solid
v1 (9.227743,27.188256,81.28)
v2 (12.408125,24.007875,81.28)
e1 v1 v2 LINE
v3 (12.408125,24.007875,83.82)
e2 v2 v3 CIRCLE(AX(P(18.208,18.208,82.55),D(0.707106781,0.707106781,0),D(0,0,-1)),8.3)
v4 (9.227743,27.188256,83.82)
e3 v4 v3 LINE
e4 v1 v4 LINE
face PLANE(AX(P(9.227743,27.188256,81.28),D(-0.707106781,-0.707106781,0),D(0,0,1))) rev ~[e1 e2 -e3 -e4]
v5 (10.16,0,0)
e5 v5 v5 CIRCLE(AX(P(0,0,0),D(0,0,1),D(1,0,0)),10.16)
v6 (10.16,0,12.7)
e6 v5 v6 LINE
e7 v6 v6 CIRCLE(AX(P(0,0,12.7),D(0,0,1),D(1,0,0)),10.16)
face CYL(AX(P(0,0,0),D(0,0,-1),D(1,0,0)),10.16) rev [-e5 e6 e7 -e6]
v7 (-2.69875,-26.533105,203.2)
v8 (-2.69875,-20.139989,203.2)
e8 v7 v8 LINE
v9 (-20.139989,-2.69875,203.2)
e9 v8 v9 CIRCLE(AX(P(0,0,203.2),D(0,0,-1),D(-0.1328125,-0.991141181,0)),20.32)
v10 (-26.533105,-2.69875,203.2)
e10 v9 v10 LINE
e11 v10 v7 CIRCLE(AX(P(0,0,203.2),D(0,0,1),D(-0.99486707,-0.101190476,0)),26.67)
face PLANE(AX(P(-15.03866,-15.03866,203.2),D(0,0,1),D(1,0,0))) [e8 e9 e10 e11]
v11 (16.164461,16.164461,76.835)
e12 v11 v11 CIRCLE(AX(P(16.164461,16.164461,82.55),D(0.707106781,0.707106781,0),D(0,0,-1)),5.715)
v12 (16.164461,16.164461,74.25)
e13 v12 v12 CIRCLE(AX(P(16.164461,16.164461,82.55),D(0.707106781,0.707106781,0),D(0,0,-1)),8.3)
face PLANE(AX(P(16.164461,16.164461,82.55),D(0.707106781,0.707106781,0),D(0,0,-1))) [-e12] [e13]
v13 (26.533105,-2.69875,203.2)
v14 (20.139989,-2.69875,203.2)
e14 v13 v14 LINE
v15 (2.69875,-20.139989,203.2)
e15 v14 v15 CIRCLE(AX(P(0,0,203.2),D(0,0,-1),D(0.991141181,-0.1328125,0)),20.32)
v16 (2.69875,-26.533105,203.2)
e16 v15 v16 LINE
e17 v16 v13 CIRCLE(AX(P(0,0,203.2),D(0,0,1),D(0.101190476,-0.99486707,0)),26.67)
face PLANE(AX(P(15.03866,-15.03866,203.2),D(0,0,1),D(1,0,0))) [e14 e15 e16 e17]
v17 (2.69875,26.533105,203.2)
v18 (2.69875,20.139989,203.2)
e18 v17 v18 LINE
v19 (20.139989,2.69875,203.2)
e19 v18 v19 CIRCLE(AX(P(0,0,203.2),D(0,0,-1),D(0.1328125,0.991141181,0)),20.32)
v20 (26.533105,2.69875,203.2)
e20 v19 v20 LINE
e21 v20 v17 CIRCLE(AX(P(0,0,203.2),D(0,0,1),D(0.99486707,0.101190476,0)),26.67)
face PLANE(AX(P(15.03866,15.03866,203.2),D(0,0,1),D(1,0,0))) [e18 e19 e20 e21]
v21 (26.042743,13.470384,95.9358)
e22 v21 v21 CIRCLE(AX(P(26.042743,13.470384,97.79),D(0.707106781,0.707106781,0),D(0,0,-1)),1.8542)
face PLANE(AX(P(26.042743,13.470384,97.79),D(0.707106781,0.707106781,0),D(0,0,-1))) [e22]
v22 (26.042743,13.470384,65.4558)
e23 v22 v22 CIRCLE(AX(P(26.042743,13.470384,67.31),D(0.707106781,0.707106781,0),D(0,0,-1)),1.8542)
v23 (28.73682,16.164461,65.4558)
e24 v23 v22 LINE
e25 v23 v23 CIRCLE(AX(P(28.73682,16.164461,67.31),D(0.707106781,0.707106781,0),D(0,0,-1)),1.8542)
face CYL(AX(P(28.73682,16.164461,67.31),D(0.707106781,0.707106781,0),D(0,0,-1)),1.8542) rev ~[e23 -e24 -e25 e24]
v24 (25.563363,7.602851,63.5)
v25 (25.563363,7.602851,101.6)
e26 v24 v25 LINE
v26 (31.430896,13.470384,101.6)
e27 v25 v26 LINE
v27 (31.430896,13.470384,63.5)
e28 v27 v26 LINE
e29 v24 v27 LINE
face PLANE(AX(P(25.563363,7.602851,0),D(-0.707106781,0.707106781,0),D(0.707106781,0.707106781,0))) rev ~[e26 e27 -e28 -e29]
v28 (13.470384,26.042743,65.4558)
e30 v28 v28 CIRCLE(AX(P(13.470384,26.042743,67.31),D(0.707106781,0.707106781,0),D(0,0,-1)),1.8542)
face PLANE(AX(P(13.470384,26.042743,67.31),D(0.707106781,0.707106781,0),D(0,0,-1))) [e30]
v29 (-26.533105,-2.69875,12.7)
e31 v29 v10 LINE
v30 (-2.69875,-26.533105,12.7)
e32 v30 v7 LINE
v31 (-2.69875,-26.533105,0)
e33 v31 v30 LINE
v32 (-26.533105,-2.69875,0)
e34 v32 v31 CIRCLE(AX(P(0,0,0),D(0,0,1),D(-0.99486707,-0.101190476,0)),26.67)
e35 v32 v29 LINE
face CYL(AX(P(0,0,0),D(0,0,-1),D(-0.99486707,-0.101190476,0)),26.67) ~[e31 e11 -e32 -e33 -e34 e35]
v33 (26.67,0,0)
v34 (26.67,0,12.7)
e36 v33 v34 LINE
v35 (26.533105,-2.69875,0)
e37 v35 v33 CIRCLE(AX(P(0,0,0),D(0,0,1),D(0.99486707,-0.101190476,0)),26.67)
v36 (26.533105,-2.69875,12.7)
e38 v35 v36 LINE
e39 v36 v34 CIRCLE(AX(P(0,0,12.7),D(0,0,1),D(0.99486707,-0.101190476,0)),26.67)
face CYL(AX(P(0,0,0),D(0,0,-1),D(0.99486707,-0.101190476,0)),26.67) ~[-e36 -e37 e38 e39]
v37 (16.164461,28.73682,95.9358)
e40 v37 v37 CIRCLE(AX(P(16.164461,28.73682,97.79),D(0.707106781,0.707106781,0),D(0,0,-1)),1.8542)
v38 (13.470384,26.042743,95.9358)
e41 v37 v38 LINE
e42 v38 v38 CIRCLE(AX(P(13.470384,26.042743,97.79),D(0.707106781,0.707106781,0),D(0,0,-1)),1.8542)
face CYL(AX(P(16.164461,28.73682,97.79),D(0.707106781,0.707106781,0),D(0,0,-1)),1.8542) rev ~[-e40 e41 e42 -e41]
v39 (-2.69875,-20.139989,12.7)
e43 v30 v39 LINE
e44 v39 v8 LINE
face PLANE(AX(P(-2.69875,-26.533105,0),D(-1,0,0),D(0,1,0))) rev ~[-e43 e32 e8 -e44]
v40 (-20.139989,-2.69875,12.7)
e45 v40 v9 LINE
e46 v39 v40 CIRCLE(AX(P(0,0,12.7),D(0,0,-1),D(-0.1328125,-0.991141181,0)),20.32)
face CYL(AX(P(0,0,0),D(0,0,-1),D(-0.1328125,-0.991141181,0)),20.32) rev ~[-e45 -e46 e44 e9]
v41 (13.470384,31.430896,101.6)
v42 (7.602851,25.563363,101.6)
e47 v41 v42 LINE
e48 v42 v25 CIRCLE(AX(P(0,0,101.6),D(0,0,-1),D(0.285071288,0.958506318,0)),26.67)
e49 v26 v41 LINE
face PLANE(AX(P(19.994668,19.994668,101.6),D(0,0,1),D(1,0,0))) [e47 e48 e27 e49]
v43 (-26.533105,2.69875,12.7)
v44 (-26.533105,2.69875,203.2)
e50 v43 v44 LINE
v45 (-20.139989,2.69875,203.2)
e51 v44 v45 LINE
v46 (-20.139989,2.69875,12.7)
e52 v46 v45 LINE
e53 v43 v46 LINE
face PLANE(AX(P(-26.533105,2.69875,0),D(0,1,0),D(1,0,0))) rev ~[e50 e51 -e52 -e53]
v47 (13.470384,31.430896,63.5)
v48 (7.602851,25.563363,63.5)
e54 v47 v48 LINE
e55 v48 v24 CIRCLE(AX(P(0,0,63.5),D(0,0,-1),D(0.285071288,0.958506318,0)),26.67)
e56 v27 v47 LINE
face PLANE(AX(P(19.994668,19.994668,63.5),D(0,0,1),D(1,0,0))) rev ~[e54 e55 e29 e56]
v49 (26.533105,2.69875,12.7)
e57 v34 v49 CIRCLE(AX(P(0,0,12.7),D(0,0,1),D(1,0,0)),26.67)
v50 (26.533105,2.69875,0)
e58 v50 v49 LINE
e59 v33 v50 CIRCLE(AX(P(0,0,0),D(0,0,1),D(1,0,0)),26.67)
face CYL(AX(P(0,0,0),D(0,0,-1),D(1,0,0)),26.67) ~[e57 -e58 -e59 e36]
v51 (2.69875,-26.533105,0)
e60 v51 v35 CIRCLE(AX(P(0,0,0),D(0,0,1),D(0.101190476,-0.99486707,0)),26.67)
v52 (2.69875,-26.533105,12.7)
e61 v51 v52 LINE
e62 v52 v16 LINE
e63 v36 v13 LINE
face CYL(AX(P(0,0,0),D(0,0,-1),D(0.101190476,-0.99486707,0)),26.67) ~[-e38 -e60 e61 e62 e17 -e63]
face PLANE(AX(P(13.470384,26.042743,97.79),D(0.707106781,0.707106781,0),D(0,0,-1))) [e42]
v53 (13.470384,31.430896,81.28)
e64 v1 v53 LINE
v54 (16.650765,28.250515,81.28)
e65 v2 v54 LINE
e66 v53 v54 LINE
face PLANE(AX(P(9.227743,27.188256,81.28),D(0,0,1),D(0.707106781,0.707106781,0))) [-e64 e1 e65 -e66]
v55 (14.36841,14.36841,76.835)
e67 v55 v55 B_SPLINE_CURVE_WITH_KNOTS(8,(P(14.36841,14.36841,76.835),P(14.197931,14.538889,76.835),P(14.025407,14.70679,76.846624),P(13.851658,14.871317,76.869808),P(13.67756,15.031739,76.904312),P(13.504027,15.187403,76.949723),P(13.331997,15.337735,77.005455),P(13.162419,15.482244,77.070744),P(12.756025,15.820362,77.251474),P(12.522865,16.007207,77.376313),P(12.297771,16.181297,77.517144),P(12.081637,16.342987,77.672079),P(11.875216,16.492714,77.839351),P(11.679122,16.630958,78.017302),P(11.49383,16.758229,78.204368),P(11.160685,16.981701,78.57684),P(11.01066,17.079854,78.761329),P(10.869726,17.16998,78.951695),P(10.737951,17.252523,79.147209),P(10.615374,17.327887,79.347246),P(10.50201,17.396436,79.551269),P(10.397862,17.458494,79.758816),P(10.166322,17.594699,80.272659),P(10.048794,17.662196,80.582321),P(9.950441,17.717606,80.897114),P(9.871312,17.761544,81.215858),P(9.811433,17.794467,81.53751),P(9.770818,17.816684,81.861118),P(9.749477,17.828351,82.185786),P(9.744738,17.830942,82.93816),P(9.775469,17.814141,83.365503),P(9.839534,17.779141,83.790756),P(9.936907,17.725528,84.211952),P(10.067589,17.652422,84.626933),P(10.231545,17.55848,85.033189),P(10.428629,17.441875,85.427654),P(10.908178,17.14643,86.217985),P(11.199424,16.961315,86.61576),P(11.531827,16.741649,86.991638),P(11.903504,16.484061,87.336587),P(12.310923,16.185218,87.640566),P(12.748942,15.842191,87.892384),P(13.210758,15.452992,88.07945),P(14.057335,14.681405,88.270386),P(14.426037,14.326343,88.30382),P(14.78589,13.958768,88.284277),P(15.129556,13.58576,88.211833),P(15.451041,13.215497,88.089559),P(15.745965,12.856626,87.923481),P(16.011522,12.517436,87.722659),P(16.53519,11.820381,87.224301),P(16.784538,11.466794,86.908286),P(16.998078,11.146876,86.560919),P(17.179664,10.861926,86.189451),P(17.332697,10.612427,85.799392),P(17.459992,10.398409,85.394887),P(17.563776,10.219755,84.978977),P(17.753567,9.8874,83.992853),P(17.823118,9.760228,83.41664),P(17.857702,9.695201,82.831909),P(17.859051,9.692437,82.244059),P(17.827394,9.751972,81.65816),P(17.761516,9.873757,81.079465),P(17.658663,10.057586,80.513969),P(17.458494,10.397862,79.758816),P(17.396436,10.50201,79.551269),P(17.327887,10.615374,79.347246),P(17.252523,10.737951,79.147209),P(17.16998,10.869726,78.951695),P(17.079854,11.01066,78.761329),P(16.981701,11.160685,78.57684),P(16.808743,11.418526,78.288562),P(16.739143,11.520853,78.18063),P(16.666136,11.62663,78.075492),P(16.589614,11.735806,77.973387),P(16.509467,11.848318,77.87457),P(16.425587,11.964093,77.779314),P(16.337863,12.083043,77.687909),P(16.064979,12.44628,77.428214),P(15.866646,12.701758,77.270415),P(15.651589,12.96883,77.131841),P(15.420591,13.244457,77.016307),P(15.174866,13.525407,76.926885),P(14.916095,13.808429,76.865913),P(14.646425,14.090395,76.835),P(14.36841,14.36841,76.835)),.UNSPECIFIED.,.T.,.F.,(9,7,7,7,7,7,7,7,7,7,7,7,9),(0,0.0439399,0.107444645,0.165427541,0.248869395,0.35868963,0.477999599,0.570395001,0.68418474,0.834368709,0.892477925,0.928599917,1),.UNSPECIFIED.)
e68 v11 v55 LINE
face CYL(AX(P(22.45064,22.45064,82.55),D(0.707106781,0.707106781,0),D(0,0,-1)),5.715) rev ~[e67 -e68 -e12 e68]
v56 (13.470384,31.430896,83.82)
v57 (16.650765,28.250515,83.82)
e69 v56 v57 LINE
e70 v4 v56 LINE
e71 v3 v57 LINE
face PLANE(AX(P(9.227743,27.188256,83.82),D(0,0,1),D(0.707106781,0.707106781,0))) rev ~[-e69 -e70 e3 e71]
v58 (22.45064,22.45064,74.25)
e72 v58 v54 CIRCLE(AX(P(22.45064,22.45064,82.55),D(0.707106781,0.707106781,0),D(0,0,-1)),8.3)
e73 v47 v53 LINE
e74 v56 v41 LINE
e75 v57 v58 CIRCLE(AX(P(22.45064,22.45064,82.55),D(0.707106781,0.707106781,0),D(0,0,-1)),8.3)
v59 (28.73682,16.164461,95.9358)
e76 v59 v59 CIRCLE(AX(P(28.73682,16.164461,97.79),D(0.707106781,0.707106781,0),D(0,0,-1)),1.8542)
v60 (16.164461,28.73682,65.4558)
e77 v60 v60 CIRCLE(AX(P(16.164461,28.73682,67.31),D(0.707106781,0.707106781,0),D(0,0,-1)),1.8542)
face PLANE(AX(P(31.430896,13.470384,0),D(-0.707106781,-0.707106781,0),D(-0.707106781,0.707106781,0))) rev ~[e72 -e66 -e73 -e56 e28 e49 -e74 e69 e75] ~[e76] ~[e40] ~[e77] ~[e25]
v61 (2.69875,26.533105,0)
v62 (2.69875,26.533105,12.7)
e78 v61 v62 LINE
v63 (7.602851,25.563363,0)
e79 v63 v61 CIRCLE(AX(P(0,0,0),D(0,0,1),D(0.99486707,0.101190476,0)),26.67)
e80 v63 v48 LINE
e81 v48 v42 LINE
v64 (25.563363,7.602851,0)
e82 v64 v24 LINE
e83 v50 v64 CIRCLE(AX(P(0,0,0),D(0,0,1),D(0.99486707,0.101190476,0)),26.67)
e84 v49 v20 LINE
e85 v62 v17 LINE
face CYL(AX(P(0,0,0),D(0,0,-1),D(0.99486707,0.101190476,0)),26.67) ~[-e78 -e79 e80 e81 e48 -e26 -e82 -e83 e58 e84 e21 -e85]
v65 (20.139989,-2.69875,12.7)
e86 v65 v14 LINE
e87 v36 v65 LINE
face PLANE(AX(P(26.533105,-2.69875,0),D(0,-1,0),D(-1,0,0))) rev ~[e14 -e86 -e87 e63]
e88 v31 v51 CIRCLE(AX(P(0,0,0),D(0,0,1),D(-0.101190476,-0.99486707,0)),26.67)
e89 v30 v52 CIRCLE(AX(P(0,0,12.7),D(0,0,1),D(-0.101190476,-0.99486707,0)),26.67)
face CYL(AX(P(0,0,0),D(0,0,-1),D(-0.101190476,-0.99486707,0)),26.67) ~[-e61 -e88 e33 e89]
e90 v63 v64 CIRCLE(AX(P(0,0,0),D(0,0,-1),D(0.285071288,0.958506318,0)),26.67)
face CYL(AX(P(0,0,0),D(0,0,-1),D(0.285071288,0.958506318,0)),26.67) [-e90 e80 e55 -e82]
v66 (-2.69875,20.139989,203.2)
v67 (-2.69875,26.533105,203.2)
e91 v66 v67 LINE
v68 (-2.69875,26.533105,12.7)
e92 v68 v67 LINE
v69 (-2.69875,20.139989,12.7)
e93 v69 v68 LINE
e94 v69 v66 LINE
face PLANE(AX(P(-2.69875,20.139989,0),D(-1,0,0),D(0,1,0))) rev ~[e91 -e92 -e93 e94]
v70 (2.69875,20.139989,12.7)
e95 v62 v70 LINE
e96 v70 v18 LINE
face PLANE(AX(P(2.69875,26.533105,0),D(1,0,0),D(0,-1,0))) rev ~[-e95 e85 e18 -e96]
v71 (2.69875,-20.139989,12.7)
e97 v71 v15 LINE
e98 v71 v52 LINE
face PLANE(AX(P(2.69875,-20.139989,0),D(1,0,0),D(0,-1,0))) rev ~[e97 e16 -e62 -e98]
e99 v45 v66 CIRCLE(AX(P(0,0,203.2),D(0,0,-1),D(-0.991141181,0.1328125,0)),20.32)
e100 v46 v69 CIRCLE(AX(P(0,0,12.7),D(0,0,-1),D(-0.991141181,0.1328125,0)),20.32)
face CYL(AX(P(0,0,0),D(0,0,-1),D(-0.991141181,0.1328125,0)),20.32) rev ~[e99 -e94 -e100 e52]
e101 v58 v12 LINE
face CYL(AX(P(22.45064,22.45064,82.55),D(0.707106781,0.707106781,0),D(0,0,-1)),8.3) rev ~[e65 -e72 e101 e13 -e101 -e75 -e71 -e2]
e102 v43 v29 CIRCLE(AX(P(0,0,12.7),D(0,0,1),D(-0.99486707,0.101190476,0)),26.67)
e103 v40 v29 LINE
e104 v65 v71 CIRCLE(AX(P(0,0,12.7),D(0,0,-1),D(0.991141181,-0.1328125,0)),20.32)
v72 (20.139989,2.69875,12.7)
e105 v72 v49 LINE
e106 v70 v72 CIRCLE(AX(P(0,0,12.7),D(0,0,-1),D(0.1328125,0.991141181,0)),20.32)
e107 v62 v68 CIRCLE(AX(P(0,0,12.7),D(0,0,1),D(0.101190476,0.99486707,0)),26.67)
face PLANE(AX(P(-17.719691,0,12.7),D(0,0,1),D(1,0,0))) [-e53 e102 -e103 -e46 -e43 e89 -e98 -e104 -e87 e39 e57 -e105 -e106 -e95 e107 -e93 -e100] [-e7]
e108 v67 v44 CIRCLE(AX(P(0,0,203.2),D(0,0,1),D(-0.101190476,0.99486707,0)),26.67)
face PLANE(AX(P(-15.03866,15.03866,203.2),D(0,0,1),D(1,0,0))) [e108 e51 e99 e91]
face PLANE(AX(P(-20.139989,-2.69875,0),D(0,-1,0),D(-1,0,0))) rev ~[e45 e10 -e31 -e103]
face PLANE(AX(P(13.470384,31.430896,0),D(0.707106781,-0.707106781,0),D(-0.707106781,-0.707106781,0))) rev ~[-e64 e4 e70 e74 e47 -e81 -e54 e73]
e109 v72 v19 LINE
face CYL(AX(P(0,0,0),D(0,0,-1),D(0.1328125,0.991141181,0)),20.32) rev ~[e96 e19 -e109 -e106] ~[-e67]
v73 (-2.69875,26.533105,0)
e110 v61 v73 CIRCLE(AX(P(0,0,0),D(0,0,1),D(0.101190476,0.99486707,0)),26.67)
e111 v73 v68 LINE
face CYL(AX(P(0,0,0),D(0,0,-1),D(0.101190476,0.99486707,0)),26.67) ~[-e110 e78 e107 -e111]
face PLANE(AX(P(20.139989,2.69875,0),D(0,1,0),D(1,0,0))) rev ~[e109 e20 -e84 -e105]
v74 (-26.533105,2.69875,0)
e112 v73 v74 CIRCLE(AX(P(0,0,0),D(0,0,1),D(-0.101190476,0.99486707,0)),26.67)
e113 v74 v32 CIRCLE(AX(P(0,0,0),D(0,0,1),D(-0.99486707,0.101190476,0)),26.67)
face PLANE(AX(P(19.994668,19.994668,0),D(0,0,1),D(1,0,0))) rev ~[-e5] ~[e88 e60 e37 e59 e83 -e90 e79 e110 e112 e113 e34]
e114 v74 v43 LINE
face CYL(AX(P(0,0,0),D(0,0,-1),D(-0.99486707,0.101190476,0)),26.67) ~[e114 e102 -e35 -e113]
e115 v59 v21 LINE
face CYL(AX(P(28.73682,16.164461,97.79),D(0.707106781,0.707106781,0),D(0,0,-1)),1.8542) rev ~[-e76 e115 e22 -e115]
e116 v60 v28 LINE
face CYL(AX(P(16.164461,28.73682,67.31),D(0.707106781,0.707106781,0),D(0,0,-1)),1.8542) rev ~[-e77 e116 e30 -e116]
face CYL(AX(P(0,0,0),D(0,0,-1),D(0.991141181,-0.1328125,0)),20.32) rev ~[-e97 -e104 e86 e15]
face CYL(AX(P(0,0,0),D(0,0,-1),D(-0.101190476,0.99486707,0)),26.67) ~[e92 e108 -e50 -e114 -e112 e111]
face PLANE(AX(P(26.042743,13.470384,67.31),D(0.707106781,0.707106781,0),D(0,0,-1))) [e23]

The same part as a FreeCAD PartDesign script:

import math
import FreeCAD as App
import Part
import Sketcher
from FreeCAD import Vector
Q = App.Units.Quantity

doc = App.newDocument("Part")
body = doc.addObject("PartDesign::Body", "Body")

# Sketch on XY plane
sketch1 = body.newObject("Sketcher::SketchObject", "Sketch")
sketch1.AttachmentSupport = (doc.getObject("XY_Plane"), [""])
sketch1.MapMode = "FlatFace"
sketch1.addGeometry(Part.LineSegment(Vector(-26.533105, 2.69875, 0), Vector(-20.139989, 2.69875, 0)), False)
sketch1.addGeometry(Part.ArcOfCircle(Part.Circle(Vector(0, 0, 0), Vector(0, 0, 1), 20.32), math.radians(97.632146), math.radians(172.367854)), False)
sketch1.addGeometry(Part.LineSegment(Vector(-2.69875, 20.139989, 0), Vector(-2.69875, 26.533105, 0)), False)
sketch1.addGeometry(Part.ArcOfCircle(Part.Circle(Vector(0, 0, 0), Vector(0, 0, 1), 26.67), math.radians(95.807728), math.radians(174.192272)), False)
sketch1.addConstraint(Sketcher.Constraint("Coincident", 0, 2, 1, 2))
sketch1.addConstraint(Sketcher.Constraint("Coincident", 1, 1, 2, 1))
sketch1.addConstraint(Sketcher.Constraint("Coincident", 2, 2, 3, 1))
sketch1.addConstraint(Sketcher.Constraint("Coincident", 3, 2, 0, 1))
sketch1.addConstraint(Sketcher.Constraint("Horizontal", 0))
sketch1.addConstraint(Sketcher.Constraint("Vertical", 2))
sketch1.addConstraint(Sketcher.Constraint("Coincident", 1, 3, -1, 1))
sketch1.addConstraint(Sketcher.Constraint("Coincident", 3, 3, -1, 1))
sketch1.addConstraint(Sketcher.Constraint("Equal", 0, 2))
sketch1.addConstraint(Sketcher.Constraint("Radius", 1, Q("0.8 in")))
sketch1.addConstraint(Sketcher.Constraint("Radius", 3, Q("1.05 in")))
sketch1.addConstraint(Sketcher.Constraint("DistanceX", 0, 1, 0, 2, 6.393116))
pad1 = body.newObject("PartDesign::Pad", "Pad")
pad1.Profile = sketch1
pad1.Length = Q("8 in")
body2 = doc.addObject("PartDesign::Body", "Body001")

# Sketch on XY plane
sketch2 = body2.newObject("Sketcher::SketchObject", "Sketch001")
sketch2.AttachmentSupport = (doc.getObject("XY_Plane001"), [""])
sketch2.MapMode = "FlatFace"
sketch2.addGeometry(Part.ArcOfCircle(Part.Circle(Vector(0, 0, 0), Vector(0, 0, 1), 20.32), math.radians(-172.367854), math.radians(-97.632146)), False)
sketch2.addGeometry(Part.LineSegment(Vector(-20.139989, -2.69875, 0), Vector(-26.533105, -2.69875, 0)), False)
sketch2.addGeometry(Part.ArcOfCircle(Part.Circle(Vector(0, 0, 0), Vector(0, 0, 1), 26.67), math.radians(-174.192272), math.radians(-95.807728)), False)
sketch2.addGeometry(Part.LineSegment(Vector(-2.69875, -26.533105, 0), Vector(-2.69875, -20.139989, 0)), False)
sketch2.addConstraint(Sketcher.Constraint("Coincident", 0, 1, 1, 1))
sketch2.addConstraint(Sketcher.Constraint("Coincident", 1, 2, 2, 1))
sketch2.addConstraint(Sketcher.Constraint("Coincident", 2, 2, 3, 1))
sketch2.addConstraint(Sketcher.Constraint("Coincident", 3, 2, 0, 2))
sketch2.addConstraint(Sketcher.Constraint("Horizontal", 1))
sketch2.addConstraint(Sketcher.Constraint("Vertical", 3))
sketch2.addConstraint(Sketcher.Constraint("Coincident", 0, 3, -1, 1))
sketch2.addConstraint(Sketcher.Constraint("Coincident", 2, 3, -1, 1))
sketch2.addConstraint(Sketcher.Constraint("Equal", 1, 3))
sketch2.addConstraint(Sketcher.Constraint("Radius", 0, Q("0.8 in")))
sketch2.addConstraint(Sketcher.Constraint("Radius", 2, Q("1.05 in")))
sketch2.addConstraint(Sketcher.Constraint("DistanceX", 1, 2, 1, 1, 6.393116))
pad2 = body2.newObject("PartDesign::Pad", "Pad001")
pad2.Profile = sketch2
pad2.Length = Q("8 in")
body3 = doc.addObject("PartDesign::Body", "Body002")

# Sketch on XY plane
sketch3 = body3.newObject("Sketcher::SketchObject", "Sketch002")
sketch3.AttachmentSupport = (doc.getObject("XY_Plane002"), [""])
sketch3.MapMode = "FlatFace"
sketch3.addGeometry(Part.LineSegment(Vector(2.69875, 26.533105, 0), Vector(2.69875, 20.139989, 0)), False)
sketch3.addGeometry(Part.ArcOfCircle(Part.Circle(Vector(0, 0, 0), Vector(0, 0, 1), 20.32), math.radians(7.632146), math.radians(82.367854)), False)
sketch3.addGeometry(Part.LineSegment(Vector(20.139989, 2.69875, 0), Vector(26.533105, 2.69875, 0)), False)
sketch3.addGeometry(Part.ArcOfCircle(Part.Circle(Vector(0, 0, 0), Vector(0, 0, 1), 26.67), math.radians(5.807728), math.radians(84.192272)), False)
sketch3.addConstraint(Sketcher.Constraint("Coincident", 0, 2, 1, 2))
sketch3.addConstraint(Sketcher.Constraint("Coincident", 1, 1, 2, 1))
sketch3.addConstraint(Sketcher.Constraint("Coincident", 2, 2, 3, 1))
sketch3.addConstraint(Sketcher.Constraint("Coincident", 3, 2, 0, 1))
sketch3.addConstraint(Sketcher.Constraint("Vertical", 0))
sketch3.addConstraint(Sketcher.Constraint("Horizontal", 2))
sketch3.addConstraint(Sketcher.Constraint("Coincident", 1, 3, -1, 1))
sketch3.addConstraint(Sketcher.Constraint("Coincident", 3, 3, -1, 1))
sketch3.addConstraint(Sketcher.Constraint("Equal", 2, 0))
sketch3.addConstraint(Sketcher.Constraint("Radius", 1, Q("0.8 in")))
sketch3.addConstraint(Sketcher.Constraint("Radius", 3, Q("1.05 in")))
sketch3.addConstraint(Sketcher.Constraint("DistanceX", 2, 1, 2, 2, 6.393116))
pad3 = body3.newObject("PartDesign::Pad", "Pad002")
pad3.Profile = sketch3
pad3.Length = Q("8 in")
body4 = doc.addObject("PartDesign::Body", "Body003")

# Sketch on XY plane
sketch4 = body4.newObject("Sketcher::SketchObject", "Sketch003")
sketch4.AttachmentSupport = (doc.getObject("XY_Plane003"), [""])
sketch4.MapMode = "FlatFace"
sketch4.addGeometry(Part.ArcOfCircle(Part.Circle(Vector(0, 0, 0), Vector(0, 0, 1), 20.32), math.radians(-82.367854), math.radians(-7.632146)), False)
sketch4.addGeometry(Part.LineSegment(Vector(2.69875, -20.139989, 0), Vector(2.69875, -26.533105, 0)), False)
sketch4.addGeometry(Part.ArcOfCircle(Part.Circle(Vector(0, 0, 0), Vector(0, 0, 1), 26.67), math.radians(-84.192272), math.radians(-5.807728)), False)
sketch4.addGeometry(Part.LineSegment(Vector(26.533105, -2.69875, 0), Vector(20.139989, -2.69875, 0)), False)
sketch4.addConstraint(Sketcher.Constraint("Coincident", 0, 1, 1, 1))
sketch4.addConstraint(Sketcher.Constraint("Coincident", 1, 2, 2, 1))
sketch4.addConstraint(Sketcher.Constraint("Coincident", 2, 2, 3, 1))
sketch4.addConstraint(Sketcher.Constraint("Coincident", 3, 2, 0, 2))
sketch4.addConstraint(Sketcher.Constraint("Vertical", 1))
sketch4.addConstraint(Sketcher.Constraint("Horizontal", 3))
sketch4.addConstraint(Sketcher.Constraint("Coincident", 0, 3, -1, 1))
sketch4.addConstraint(Sketcher.Constraint("Coincident", 2, 3, -1, 1))
sketch4.addConstraint(Sketcher.Constraint("Equal", 3, 1))
sketch4.addConstraint(Sketcher.Constraint("Radius", 0, Q("0.8 in")))
sketch4.addConstraint(Sketcher.Constraint("Radius", 2, Q("1.05 in")))
sketch4.addConstraint(Sketcher.Constraint("DistanceX", 3, 2, 3, 1, 6.393116))
pad4 = body4.newObject("PartDesign::Pad", "Pad003")
pad4.Profile = sketch4
pad4.Length = Q("8 in")
body.AllowCompound = True
doc.recompute()

boolean = body.newObject("PartDesign::Boolean", "Boolean")
boolean.Type = "Fuse"
boolean.addObjects([body2])
doc.recompute()

boolean2 = body.newObject("PartDesign::Boolean", "Boolean001")
boolean2.Type = "Fuse"
boolean2.addObjects([body3])
doc.recompute()

boolean3 = body.newObject("PartDesign::Boolean", "Boolean002")
boolean3.Type = "Fuse"
boolean3.addObjects([body4])

# Sketch on XY plane
sketch5 = body.newObject("Sketcher::SketchObject", "Sketch004")
sketch5.AttachmentSupport = (doc.getObject("XY_Plane"), [""])
sketch5.MapMode = "FlatFace"
sketch5.addGeometry(Part.ArcOfCircle(Part.Circle(Vector(0, 0, 0), Vector(0, 0, 1), 26.67), math.radians(-174.192272), math.radians(-95.807728)), False)
sketch5.addGeometry(Part.ArcOfCircle(Part.Circle(Vector(0, 0, 0), Vector(0, 0, 1), 26.67), math.radians(-95.807728), math.radians(-84.192272)), False)
sketch5.addGeometry(Part.ArcOfCircle(Part.Circle(Vector(0, 0, 0), Vector(0, 0, 1), 26.67), math.radians(-84.192272), math.radians(-5.807728)), False)
sketch5.addGeometry(Part.ArcOfCircle(Part.Circle(Vector(0, 0, 0), Vector(0, 0, 1), 26.67), math.radians(-5.807728), math.radians(0)), False)
sketch5.addGeometry(Part.ArcOfCircle(Part.Circle(Vector(0, 0, 0), Vector(0, 0, 1), 26.67), math.radians(0), math.radians(5.807728)), False)
sketch5.addGeometry(Part.ArcOfCircle(Part.Circle(Vector(0, 0, 0), Vector(0, 0, 1), 26.67), math.radians(5.807727), math.radians(16.56311)), False)
sketch5.addGeometry(Part.ArcOfCircle(Part.Circle(Vector(0, 0, 0), Vector(0, 0, 1), 26.67), math.radians(16.56311), math.radians(73.43689)), False)
sketch5.addGeometry(Part.ArcOfCircle(Part.Circle(Vector(0, 0, 0), Vector(0, 0, 1), 26.67), math.radians(73.43689), math.radians(84.192273)), False)
sketch5.addGeometry(Part.ArcOfCircle(Part.Circle(Vector(0, 0, 0), Vector(0, 0, 1), 26.67), math.radians(84.192272), math.radians(95.807728)), False)
sketch5.addGeometry(Part.ArcOfCircle(Part.Circle(Vector(0, 0, 0), Vector(0, 0, 1), 26.67), math.radians(95.807728), math.radians(174.192272)), False)
sketch5.addGeometry(Part.ArcOfCircle(Part.Circle(Vector(0, 0, 0), Vector(0, 0, 1), 26.67), math.radians(174.192272), math.radians(185.807728)), False)
sketch5.addGeometry(Part.Circle(Vector(0, 0, 0), Vector(0, 0, 1), 10.16), False)
sketch5.addConstraint(Sketcher.Constraint("Tangent", 0, 2, 1, 1))
sketch5.addConstraint(Sketcher.Constraint("Tangent", 1, 2, 2, 1))
sketch5.addConstraint(Sketcher.Constraint("Tangent", 2, 2, 3, 1))
sketch5.addConstraint(Sketcher.Constraint("Tangent", 3, 2, 4, 1))
sketch5.addConstraint(Sketcher.Constraint("Tangent", 4, 2, 5, 1))
sketch5.addConstraint(Sketcher.Constraint("Tangent", 5, 2, 6, 1))
sketch5.addConstraint(Sketcher.Constraint("Tangent", 6, 2, 7, 1))
sketch5.addConstraint(Sketcher.Constraint("Tangent", 7, 2, 8, 1))
sketch5.addConstraint(Sketcher.Constraint("Tangent", 8, 2, 9, 1))
sketch5.addConstraint(Sketcher.Constraint("Tangent", 9, 2, 10, 1))
sketch5.addConstraint(Sketcher.Constraint("Tangent", 10, 2, 0, 1))
sketch5.addConstraint(Sketcher.Constraint("Coincident", 0, 3, -1, 1))
sketch5.addConstraint(Sketcher.Constraint("Coincident", 2, 3, -1, 1))
sketch5.addConstraint(Sketcher.Constraint("Coincident", 4, 3, -1, 1))
sketch5.addConstraint(Sketcher.Constraint("Coincident", 6, 3, -1, 1))
sketch5.addConstraint(Sketcher.Constraint("Coincident", 8, 3, -1, 1))
sketch5.addConstraint(Sketcher.Constraint("Coincident", 11, 3, -1, 1))
sketch5.addConstraint(Sketcher.Constraint("PointOnObject", 3, 2, -1))
sketch5.addConstraint(Sketcher.Constraint("Horizontal", 0, 2, 1, 2))
sketch5.addConstraint(Sketcher.Constraint("Horizontal", 7, 2, 8, 2))
sketch5.addConstraint(Sketcher.Constraint("Horizontal", 4, 2, 9, 2))
sketch5.addConstraint(Sketcher.Constraint("Horizontal", 2, 2, 10, 2))
sketch5.addConstraint(Sketcher.Constraint("Vertical", 2, 2, 4, 2))
sketch5.addConstraint(Sketcher.Constraint("Vertical", 1, 2, 7, 2))
sketch5.addConstraint(Sketcher.Constraint("Diameter", 11, Q("0.8 in")))
sketch5.addConstraint(Sketcher.Constraint("Radius", 0, Q("1.05 in")))
sketch5.addConstraint(Sketcher.Constraint("DistanceX", 0, 2, 1, 2, Q("0.2125 in")))
sketch5.addConstraint(Sketcher.Constraint("DistanceY", 2, 2, 4, 2, Q("0.2125 in")))
sketch5.addConstraint(Sketcher.Constraint("DistanceY", 4, 2, 5, 2, 4.904101))
sketch5.addConstraint(Sketcher.Constraint("DistanceX", 7, 2, 6, 2, 4.904101))
pad5 = body.newObject("PartDesign::Pad", "Pad004")
pad5.Profile = sketch5
pad5.Length = Q("0.5 in")

# Sketch on XY plane
sketch6 = body.newObject("Sketcher::SketchObject", "Sketch005")
sketch6.AttachmentSupport = (doc.getObject("XY_Plane"), [""])
sketch6.MapMode = "FlatFace"
sketch6.addGeometry(Part.LineSegment(Vector(13.470384, 31.430896, 0), Vector(7.602851, 25.563363, 0)), False)
sketch6.addGeometry(Part.ArcOfCircle(Part.Circle(Vector(0, 0, 0), Vector(0, 0, 1), 26.67), math.radians(16.56311), math.radians(73.43689)), False)
sketch6.addGeometry(Part.LineSegment(Vector(25.563363, 7.602851, 0), Vector(31.430896, 13.470384, 0)), False)
sketch6.addGeometry(Part.LineSegment(Vector(31.430896, 13.470384, 0), Vector(13.470384, 31.430896, 0)), False)
sketch6.addConstraint(Sketcher.Constraint("Coincident", 0, 2, 1, 2))
sketch6.addConstraint(Sketcher.Constraint("Coincident", 1, 1, 2, 1))
sketch6.addConstraint(Sketcher.Constraint("Coincident", 2, 2, 3, 1))
sketch6.addConstraint(Sketcher.Constraint("Coincident", 3, 2, 0, 1))
sketch6.addConstraint(Sketcher.Constraint("Coincident", 1, 3, -1, 1))
sketch6.addConstraint(Sketcher.Constraint("Parallel", 0, 2))
sketch6.addConstraint(Sketcher.Constraint("Perpendicular", 2, 3))
sketch6.addConstraint(Sketcher.Constraint("Equal", 0, 2))
sketch6.addConstraint(Sketcher.Constraint("Radius", 1, Q("1.05 in")))
sketch6.addConstraint(Sketcher.Constraint("Distance", 3, Q("1 in")))
sketch6.addConstraint(Sketcher.Constraint("Angle", 0, Q("-135 deg")))
sketch6.addConstraint(Sketcher.Constraint("DistanceY", 2, 2, 0, 2, 12.092979))
pad6 = body.newObject("PartDesign::Pad", "Pad005")
pad6.Profile = sketch6
pad6.Length = Q("4 in")

# Sketch on XY plane
sketch7 = body.newObject("Sketcher::SketchObject", "Sketch006")
sketch7.AttachmentSupport = (doc.getObject("XY_Plane"), [""])
sketch7.MapMode = "FlatFace"
sketch7.addGeometry(Part.LineSegment(Vector(13.470384, 31.430896, 0), Vector(7.602851, 25.563363, 0)), False)
sketch7.addGeometry(Part.ArcOfCircle(Part.Circle(Vector(0, 0, 0), Vector(0, 0, 1), 26.67), math.radians(16.56311), math.radians(73.43689)), False)
sketch7.addGeometry(Part.LineSegment(Vector(25.563363, 7.602851, 0), Vector(31.430896, 13.470384, 0)), False)
sketch7.addGeometry(Part.LineSegment(Vector(31.430896, 13.470384, 0), Vector(13.470384, 31.430896, 0)), False)
sketch7.addConstraint(Sketcher.Constraint("Coincident", 0, 2, 1, 2))
sketch7.addConstraint(Sketcher.Constraint("Coincident", 1, 1, 2, 1))
sketch7.addConstraint(Sketcher.Constraint("Coincident", 2, 2, 3, 1))
sketch7.addConstraint(Sketcher.Constraint("Coincident", 3, 2, 0, 1))
sketch7.addConstraint(Sketcher.Constraint("Coincident", 1, 3, -1, 1))
sketch7.addConstraint(Sketcher.Constraint("Parallel", 0, 2))
sketch7.addConstraint(Sketcher.Constraint("Perpendicular", 2, 3))
sketch7.addConstraint(Sketcher.Constraint("Equal", 0, 2))
sketch7.addConstraint(Sketcher.Constraint("Radius", 1, Q("1.05 in")))
sketch7.addConstraint(Sketcher.Constraint("Distance", 3, Q("1 in")))
sketch7.addConstraint(Sketcher.Constraint("Angle", 0, Q("-135 deg")))
sketch7.addConstraint(Sketcher.Constraint("DistanceY", 2, 2, 0, 2, 12.092979))
pocket1 = body.newObject("PartDesign::Pocket", "Pocket")
pocket1.Profile = sketch7
pocket1.Length = Q("2.5 in")
pocket1.Reversed = True

# Sketch on an angled plane
sketch8 = body.newObject("Sketcher::SketchObject", "Sketch007")
sketch8.Placement = App.Placement(Vector(22.45064, 22.45064, 0), App.Rotation(Vector(0, 0, -1), Vector(-0.707106781, 0.707106781, 0), Vector(0.707106781, 0.707106781, 0), "ZXY"))
sketch8.addGeometry(Part.Circle(Vector(-82.55, 0, 0), Vector(0, 0, 1), 8.3), False)
sketch8.addConstraint(Sketcher.Constraint("PointOnObject", 0, 3, -1))
sketch8.addConstraint(Sketcher.Constraint("Diameter", 0, 16.6))
sketch8.addConstraint(Sketcher.Constraint("DistanceX", 0, 3, -1, 1, Q("3.25 in")))
pocket2 = body.newObject("PartDesign::Pocket", "Pocket001")
pocket2.Profile = sketch8
pocket2.Length = Q("0.35 in")

# Sketch on an angled plane
sketch9 = body.newObject("Sketcher::SketchObject", "Sketch008")
sketch9.Placement = App.Placement(Vector(22.45064, 22.45064, 0), App.Rotation(Vector(0, 0, -1), Vector(-0.707106781, 0.707106781, 0), Vector(0.707106781, 0.707106781, 0), "ZXY"))
sketch9.addGeometry(Part.Circle(Vector(-82.55, 0, 0), Vector(0, 0, 1), 5.715), False)
sketch9.addConstraint(Sketcher.Constraint("PointOnObject", 0, 3, -1))
sketch9.addConstraint(Sketcher.Constraint("Diameter", 0, Q("0.45 in")))
sketch9.addConstraint(Sketcher.Constraint("DistanceX", 0, 3, -1, 1, Q("3.25 in")))
pocket3 = body.newObject("PartDesign::Pocket", "Pocket002")
pocket3.Profile = sketch9
pocket3.Length = Q("1 in")

# Sketch on an angled plane
sketch10 = body.newObject("Sketcher::SketchObject", "Sketch009")
sketch10.Placement = App.Placement(Vector(-8.980256, 8.980256, 0), App.Rotation(Vector(0, 0, 1), Vector(0.707106781, 0.707106781, 0), Vector(-0.707106781, 0.707106781, 0), "ZXY"))
sketch10.addGeometry(Part.LineSegment(Vector(81.28, 31.75, 0), Vector(81.28, 25.75, 0)), False)
sketch10.addGeometry(Part.LineSegment(Vector(81.28, 25.75, 0), Vector(83.82, 25.75, 0)), False)
sketch10.addGeometry(Part.LineSegment(Vector(83.82, 25.75, 0), Vector(83.82, 31.75, 0)), False)
sketch10.addGeometry(Part.LineSegment(Vector(83.82, 31.75, 0), Vector(81.28, 31.75, 0)), False)
sketch10.addConstraint(Sketcher.Constraint("Coincident", 0, 2, 1, 1))
sketch10.addConstraint(Sketcher.Constraint("Coincident", 1, 2, 2, 1))
sketch10.addConstraint(Sketcher.Constraint("Coincident", 2, 2, 3, 1))
sketch10.addConstraint(Sketcher.Constraint("Coincident", 3, 2, 0, 1))
sketch10.addConstraint(Sketcher.Constraint("Vertical", 0))
sketch10.addConstraint(Sketcher.Constraint("Horizontal", 1))
sketch10.addConstraint(Sketcher.Constraint("Vertical", 2))
sketch10.addConstraint(Sketcher.Constraint("Horizontal", 3))
sketch10.addConstraint(Sketcher.Constraint("DistanceX", 1, 1, 1, 2, Q("0.1 in")))
sketch10.addConstraint(Sketcher.Constraint("DistanceX", -1, 1, 0, 2, Q("3.2 in")))
sketch10.addConstraint(Sketcher.Constraint("DistanceY", -1, 1, 2, 2, Q("1.25 in")))
sketch10.addConstraint(Sketcher.Constraint("DistanceY", 0, 2, 0, 1, 6.0))
pocket4 = body.newObject("PartDesign::Pocket", "Pocket003")
pocket4.Profile = sketch10
pocket4.Length = Q("0.35 in")

# Sketch on an angled plane
sketch11 = body.newObject("Sketcher::SketchObject", "Sketch010")
sketch11.Placement = App.Placement(Vector(22.45064, 22.45064, 0), App.Rotation(Vector(0, 0, -1), Vector(-0.707106781, 0.707106781, 0), Vector(0.707106781, 0.707106781, 0), "ZXY"))
sketch11.addGeometry(Part.Circle(Vector(-97.79, -8.89, 0), Vector(0, 0, 1), 1.8542), False)
sketch11.addGeometry(Part.Circle(Vector(-97.79, 8.89, 0), Vector(0, 0, 1), 1.8542), False)
sketch11.addGeometry(Part.Circle(Vector(-67.31, 8.89, 0), Vector(0, 0, 1), 1.8542), False)
sketch11.addGeometry(Part.Circle(Vector(-67.31, -8.89, 0), Vector(0, 0, 1), 1.8542), False)
sketch11.addConstraint(Sketcher.Constraint("Equal", 0, 1))
sketch11.addConstraint(Sketcher.Constraint("Equal", 1, 2))
sketch11.addConstraint(Sketcher.Constraint("Equal", 2, 3))
sketch11.addConstraint(Sketcher.Constraint("Symmetric", 0, 3, 1, 3, -1))
sketch11.addConstraint(Sketcher.Constraint("Symmetric", 2, 3, 3, 3, -1))
sketch11.addConstraint(Sketcher.Constraint("Horizontal", 1, 3, 2, 3))
sketch11.addConstraint(Sketcher.Constraint("Diameter", 0, Q("0.146 in")))
sketch11.addConstraint(Sketcher.Constraint("DistanceY", 0, 3, 1, 3, Q("0.7 in")))
sketch11.addConstraint(Sketcher.Constraint("DistanceX", 1, 3, 2, 3, Q("1.2 in")))
sketch11.addConstraint(Sketcher.Constraint("DistanceX", 0, 3, -1, 1, Q("3.85 in")))
pocket5 = body.newObject("PartDesign::Pocket", "Pocket004")
pocket5.Profile = sketch11
pocket5.Length = Q("0.15 in")

doc.recompute()
